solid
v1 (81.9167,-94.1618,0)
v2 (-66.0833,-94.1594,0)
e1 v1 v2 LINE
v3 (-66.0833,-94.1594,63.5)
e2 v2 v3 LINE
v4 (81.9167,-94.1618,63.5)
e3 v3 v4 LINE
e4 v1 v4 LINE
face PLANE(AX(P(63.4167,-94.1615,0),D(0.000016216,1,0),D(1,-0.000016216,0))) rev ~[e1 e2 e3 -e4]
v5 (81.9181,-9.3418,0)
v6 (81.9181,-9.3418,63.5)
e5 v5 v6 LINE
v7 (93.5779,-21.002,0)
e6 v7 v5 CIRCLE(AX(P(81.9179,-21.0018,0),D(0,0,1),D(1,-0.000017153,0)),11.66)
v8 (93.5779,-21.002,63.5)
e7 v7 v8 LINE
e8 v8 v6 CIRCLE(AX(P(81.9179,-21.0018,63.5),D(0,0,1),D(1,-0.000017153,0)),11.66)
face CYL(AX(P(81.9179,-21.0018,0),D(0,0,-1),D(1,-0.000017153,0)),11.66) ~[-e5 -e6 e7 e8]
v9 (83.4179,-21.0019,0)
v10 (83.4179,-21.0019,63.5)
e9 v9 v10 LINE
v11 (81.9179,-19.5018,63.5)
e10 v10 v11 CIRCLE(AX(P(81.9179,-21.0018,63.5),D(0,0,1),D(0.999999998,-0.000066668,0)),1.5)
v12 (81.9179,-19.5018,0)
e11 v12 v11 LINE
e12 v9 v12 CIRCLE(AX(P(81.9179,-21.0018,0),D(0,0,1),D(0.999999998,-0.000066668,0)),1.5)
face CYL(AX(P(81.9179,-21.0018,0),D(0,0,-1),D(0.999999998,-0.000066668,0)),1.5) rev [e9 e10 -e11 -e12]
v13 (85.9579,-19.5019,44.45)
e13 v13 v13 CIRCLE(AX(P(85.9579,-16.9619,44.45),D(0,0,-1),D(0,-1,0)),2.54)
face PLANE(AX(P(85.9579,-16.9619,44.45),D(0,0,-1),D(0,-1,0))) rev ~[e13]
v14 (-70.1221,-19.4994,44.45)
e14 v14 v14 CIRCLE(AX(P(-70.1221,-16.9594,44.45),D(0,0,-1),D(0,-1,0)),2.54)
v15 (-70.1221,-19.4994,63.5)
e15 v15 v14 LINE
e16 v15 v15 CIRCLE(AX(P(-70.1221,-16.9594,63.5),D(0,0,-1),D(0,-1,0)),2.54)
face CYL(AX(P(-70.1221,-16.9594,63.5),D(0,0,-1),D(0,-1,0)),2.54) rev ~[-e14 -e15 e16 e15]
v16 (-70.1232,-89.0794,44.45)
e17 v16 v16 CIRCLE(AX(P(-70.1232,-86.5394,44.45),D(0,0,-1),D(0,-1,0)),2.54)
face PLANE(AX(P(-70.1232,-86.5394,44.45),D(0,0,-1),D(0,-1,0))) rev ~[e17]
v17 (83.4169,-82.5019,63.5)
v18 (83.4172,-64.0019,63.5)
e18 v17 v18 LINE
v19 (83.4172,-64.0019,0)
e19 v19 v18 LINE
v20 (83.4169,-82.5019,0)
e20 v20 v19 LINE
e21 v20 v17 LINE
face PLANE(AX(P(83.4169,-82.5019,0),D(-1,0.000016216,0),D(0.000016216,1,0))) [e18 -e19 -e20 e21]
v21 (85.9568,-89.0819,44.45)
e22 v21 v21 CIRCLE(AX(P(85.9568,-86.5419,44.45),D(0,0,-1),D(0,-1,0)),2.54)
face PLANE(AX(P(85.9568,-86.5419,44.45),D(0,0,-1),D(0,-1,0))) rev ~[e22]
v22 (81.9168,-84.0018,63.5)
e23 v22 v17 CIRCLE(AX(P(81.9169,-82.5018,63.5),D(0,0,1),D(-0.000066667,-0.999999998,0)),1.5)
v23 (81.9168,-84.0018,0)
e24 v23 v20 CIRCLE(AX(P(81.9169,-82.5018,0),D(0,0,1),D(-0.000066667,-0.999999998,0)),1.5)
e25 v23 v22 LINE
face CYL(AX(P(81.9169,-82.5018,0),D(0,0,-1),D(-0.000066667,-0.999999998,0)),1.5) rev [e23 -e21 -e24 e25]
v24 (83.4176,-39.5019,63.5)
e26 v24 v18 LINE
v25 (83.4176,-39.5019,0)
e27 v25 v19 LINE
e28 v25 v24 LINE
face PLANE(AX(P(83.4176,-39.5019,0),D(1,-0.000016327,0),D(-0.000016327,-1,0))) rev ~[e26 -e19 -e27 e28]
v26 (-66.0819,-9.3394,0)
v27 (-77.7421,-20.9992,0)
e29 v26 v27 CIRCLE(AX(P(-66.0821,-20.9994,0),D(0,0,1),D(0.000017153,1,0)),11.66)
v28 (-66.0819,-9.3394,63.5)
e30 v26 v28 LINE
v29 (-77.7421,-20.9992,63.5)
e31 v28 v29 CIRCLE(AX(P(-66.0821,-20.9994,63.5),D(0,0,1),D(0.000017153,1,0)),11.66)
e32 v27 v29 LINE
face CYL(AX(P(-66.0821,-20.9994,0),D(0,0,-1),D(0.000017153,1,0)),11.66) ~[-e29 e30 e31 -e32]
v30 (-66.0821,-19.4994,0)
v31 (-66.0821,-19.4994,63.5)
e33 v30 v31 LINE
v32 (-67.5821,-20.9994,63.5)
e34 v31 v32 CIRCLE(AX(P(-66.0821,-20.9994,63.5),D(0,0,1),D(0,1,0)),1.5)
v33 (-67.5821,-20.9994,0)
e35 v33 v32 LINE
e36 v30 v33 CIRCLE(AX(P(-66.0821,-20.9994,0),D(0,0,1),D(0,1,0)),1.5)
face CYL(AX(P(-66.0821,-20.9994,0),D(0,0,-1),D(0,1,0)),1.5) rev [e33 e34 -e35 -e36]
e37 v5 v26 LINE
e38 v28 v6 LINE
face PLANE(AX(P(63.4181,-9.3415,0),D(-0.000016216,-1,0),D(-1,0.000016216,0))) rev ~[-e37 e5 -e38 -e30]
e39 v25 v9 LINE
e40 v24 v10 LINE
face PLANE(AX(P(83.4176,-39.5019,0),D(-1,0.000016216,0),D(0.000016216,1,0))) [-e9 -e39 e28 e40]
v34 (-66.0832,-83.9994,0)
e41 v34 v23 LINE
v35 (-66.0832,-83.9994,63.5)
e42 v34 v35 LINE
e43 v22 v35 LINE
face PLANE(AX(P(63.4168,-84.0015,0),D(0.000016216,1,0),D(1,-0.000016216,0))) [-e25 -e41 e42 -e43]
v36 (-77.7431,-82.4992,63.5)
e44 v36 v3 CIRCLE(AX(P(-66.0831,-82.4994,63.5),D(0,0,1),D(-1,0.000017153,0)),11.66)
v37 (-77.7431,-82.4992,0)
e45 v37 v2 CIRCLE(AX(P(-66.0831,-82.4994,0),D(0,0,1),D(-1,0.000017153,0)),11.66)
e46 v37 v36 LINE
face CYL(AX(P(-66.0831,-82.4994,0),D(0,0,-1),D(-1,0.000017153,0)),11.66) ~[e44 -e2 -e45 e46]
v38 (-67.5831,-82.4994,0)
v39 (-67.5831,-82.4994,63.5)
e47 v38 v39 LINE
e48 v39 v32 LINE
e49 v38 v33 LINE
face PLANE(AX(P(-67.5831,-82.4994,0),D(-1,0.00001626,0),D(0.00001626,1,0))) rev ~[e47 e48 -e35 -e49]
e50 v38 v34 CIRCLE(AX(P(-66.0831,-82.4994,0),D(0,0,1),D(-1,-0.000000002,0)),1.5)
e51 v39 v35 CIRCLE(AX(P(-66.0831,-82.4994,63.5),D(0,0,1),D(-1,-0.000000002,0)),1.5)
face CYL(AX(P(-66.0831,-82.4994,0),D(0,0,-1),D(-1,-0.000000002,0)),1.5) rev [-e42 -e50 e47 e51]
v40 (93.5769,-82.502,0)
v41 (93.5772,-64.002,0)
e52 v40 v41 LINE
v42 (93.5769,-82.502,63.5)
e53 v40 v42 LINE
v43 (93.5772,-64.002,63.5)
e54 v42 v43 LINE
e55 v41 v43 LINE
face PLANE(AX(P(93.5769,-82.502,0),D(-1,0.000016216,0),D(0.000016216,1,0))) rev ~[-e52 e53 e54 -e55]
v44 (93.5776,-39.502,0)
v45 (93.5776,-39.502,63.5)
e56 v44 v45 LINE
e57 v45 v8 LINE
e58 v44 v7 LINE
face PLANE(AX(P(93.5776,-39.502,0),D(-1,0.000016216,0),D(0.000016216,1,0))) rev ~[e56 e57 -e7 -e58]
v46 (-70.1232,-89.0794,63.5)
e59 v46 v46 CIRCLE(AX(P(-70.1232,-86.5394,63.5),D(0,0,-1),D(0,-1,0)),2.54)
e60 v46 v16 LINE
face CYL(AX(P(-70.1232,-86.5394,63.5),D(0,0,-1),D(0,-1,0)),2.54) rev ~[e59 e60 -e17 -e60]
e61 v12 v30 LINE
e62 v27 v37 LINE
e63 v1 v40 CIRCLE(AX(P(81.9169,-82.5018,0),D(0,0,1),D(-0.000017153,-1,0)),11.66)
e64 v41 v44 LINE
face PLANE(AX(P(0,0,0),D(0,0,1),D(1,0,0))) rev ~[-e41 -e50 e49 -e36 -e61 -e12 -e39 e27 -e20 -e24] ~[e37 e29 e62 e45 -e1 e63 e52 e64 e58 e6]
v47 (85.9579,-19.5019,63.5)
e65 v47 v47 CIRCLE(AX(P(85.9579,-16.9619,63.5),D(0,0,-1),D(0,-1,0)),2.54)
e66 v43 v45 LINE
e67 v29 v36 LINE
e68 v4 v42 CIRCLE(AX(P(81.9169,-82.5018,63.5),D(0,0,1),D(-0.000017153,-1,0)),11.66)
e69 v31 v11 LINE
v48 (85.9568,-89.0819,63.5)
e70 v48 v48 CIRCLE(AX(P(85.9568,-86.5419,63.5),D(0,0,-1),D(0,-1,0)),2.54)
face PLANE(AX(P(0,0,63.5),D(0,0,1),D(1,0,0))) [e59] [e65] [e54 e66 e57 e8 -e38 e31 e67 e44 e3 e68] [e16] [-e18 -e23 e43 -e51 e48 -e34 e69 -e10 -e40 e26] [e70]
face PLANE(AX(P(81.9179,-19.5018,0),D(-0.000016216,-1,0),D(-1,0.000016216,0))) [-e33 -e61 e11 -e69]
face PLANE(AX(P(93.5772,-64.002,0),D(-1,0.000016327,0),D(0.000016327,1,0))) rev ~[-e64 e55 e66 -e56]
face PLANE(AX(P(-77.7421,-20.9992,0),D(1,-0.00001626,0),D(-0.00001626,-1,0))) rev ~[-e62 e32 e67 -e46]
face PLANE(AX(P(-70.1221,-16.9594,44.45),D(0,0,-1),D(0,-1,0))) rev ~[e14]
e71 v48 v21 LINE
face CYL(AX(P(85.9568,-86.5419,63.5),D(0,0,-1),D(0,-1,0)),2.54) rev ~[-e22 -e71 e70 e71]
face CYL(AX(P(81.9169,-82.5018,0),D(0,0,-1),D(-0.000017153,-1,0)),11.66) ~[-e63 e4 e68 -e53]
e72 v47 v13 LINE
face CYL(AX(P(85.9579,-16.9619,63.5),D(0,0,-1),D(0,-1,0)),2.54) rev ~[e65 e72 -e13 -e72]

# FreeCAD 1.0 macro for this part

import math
import FreeCAD as App
import Part
import Sketcher
Q = App.Units.Quantity

doc = App.newDocument("Part")
body = doc.addObject("PartDesign::Body", "Body")

# Sketch on XY plane
sketch1 = body.newObject("Sketcher::SketchObject", "Sketch")
sketch1.AttachmentSupport = (doc.getObject("XY_Plane"), [""])
sketch1.MapMode = "FlatFace"
sketch1.addGeometry([
    Part.ArcOfCircle(Part.Circle(App.Vector(-66.0821, -20.9994, 0), App.Vector(0, 0, 1), 11.66), math.radians(89.999017), math.radians(179.999017)),  # 0
    Part.LineSegment(App.Vector(-77.7421, -20.9992, 0), App.Vector(-77.7431, -82.4992, 0)),  # 1
    Part.ArcOfCircle(Part.Circle(App.Vector(-66.0831, -82.4994, 0), App.Vector(0, 0, 1), 11.66), math.radians(179.999017), math.radians(269.999017)),  # 2
    Part.LineSegment(App.Vector(-66.0833, -94.1594, 0), App.Vector(81.9167, -94.1618, 0)),  # 3
    Part.ArcOfCircle(Part.Circle(App.Vector(81.9169, -82.5018, 0), App.Vector(0, 0, 1), 11.66), math.radians(-90.000983), math.radians(-0.000983)),  # 4
    Part.LineSegment(App.Vector(93.5769, -82.502, 0), App.Vector(93.5772, -64.002, 0)),  # 5
    Part.LineSegment(App.Vector(93.5772, -64.002, 0), App.Vector(93.5776, -39.502, 0)),  # 6
    Part.LineSegment(App.Vector(93.5776, -39.502, 0), App.Vector(93.5779, -21.002, 0)),  # 7
    Part.ArcOfCircle(Part.Circle(App.Vector(81.9179, -21.0018, 0), App.Vector(0, 0, 1), 11.66), math.radians(-0.000983), math.radians(89.999017)),  # 8
    Part.LineSegment(App.Vector(81.9181, -9.3418, 0), App.Vector(-66.0819, -9.3394, 0)),  # 9
    Part.LineSegment(App.Vector(81.9168, -84.0018, 0), App.Vector(-66.0832, -83.9994, 0)),  # 10
    Part.ArcOfCircle(Part.Circle(App.Vector(-66.0831, -82.4994, 0), App.Vector(0, 0, 1), 1.5), math.radians(180), math.radians(269.99618)),  # 11
    Part.LineSegment(App.Vector(-67.5831, -82.4994, 0), App.Vector(-67.5821, -20.9994, 0)),  # 12
    Part.ArcOfCircle(Part.Circle(App.Vector(-66.0821, -20.9994, 0), App.Vector(0, 0, 1), 1.5), math.radians(90), math.radians(180)),  # 13
    Part.LineSegment(App.Vector(-66.0821, -19.4994, 0), App.Vector(81.9179, -19.5018, 0)),  # 14
    Part.ArcOfCircle(Part.Circle(App.Vector(81.9179, -21.0018, 0), App.Vector(0, 0, 1), 1.5), math.radians(-0.00382), math.radians(90)),  # 15
    Part.LineSegment(App.Vector(83.4179, -21.0019, 0), App.Vector(83.4176, -39.5019, 0)),  # 16
    Part.LineSegment(App.Vector(83.4176, -39.5019, 0), App.Vector(83.4172, -64.0019, 0)),  # 17
    Part.LineSegment(App.Vector(83.4172, -64.0019, 0), App.Vector(83.4169, -82.5019, 0)),  # 18
    Part.ArcOfCircle(Part.Circle(App.Vector(81.9169, -82.5018, 0), App.Vector(0, 0, 1), 1.5), math.radians(-90.00382), math.radians(-0.00382)),  # 19
], False)
sketch1.addConstraint([
    Sketcher.Constraint("Coincident", 0, 2, 1, 1),
    Sketcher.Constraint("Coincident", 1, 2, 2, 1),
    Sketcher.Constraint("Coincident", 2, 2, 3, 1),
    Sketcher.Constraint("Coincident", 3, 2, 4, 1),
    Sketcher.Constraint("Coincident", 4, 2, 5, 1),
    Sketcher.Constraint("Coincident", 5, 2, 6, 1),
    Sketcher.Constraint("Coincident", 6, 2, 7, 1),
    Sketcher.Constraint("Coincident", 7, 2, 8, 1),
    Sketcher.Constraint("Coincident", 8, 2, 9, 1),
    Sketcher.Constraint("Coincident", 9, 2, 0, 1),
    Sketcher.Constraint("Coincident", 10, 2, 11, 2),
    Sketcher.Constraint("Coincident", 11, 1, 12, 1),
    Sketcher.Constraint("Coincident", 12, 2, 13, 2),
    Sketcher.Constraint("Coincident", 13, 1, 14, 1),
    Sketcher.Constraint("Coincident", 14, 2, 15, 2),
    Sketcher.Constraint("Coincident", 15, 1, 16, 1),
    Sketcher.Constraint("Coincident", 16, 2, 17, 1),
    Sketcher.Constraint("Coincident", 17, 2, 18, 1),
    Sketcher.Constraint("Coincident", 18, 2, 19, 2),
    Sketcher.Constraint("Coincident", 19, 1, 10, 1),
    Sketcher.Constraint("Coincident", 11, 3, 2, 3),
    Sketcher.Constraint("Coincident", 13, 3, 0, 3),
    Sketcher.Constraint("Coincident", 15, 3, 8, 3),
    Sketcher.Constraint("Coincident", 19, 3, 4, 3),
    Sketcher.Constraint("Radius", 11, Q("1.5 mm")),
    Sketcher.Constraint("Radius", 13, Q("1.5 mm")),
    Sketcher.Constraint("Radius", 15, Q("1.5 mm")),
    Sketcher.Constraint("Radius", 19, Q("1.5 mm")),
    Sketcher.Constraint("Radius", 0, Q("11.66 mm")),
    Sketcher.Constraint("Radius", 2, Q("11.66 mm")),
    Sketcher.Constraint("Radius", 4, Q("11.66 mm")),
    Sketcher.Constraint("Radius", 8, Q("11.66 mm")),
    Sketcher.Constraint("DistanceX", 16, 2, 6, 2, Q("10.16 mm")),
    Sketcher.Constraint("DistanceX", 17, 2, 5, 2, Q("10.16 mm")),
    Sketcher.Constraint("Distance", 3, Q("148 mm")),
    Sketcher.Constraint("Distance", 9, Q("148 mm")),
    Sketcher.Constraint("Distance", 10, Q("148 mm")),
    Sketcher.Constraint("Distance", 14, Q("148 mm")),
    Sketcher.Constraint("DistanceX", 2, 3, 4, 3, Q("148 mm")),
    Sketcher.Constraint("DistanceX", 0, 3, 8, 3, Q("148 mm")),
    Sketcher.Constraint("DistanceY", 4, 2, 6, 2, Q("43 mm")),
    Sketcher.Constraint("DistanceY", 5, 2, 7, 2, Q("43 mm")),
    Sketcher.Constraint("DistanceX", 10, 2, 2, 3, Q("0 mm")),
    Sketcher.Constraint("DistanceY", 10, 2, 0, 3, Q("63 mm")),
    Sketcher.Constraint("DistanceY", 6, 2, 16, 2, Q("0 mm")),
    Sketcher.Constraint("DistanceY", 16, 2, 14, 2, Q("20 mm")),
    Sketcher.Constraint("DistanceY", 18, 2, 4, 3, Q("0 mm")),
    Sketcher.Constraint("Distance", 1, Q("61.5 mm")),
    Sketcher.Constraint("Distance", 5, Q("18.5 mm")),
    Sketcher.Constraint("Distance", 12, Q("61.5 mm")),
    Sketcher.Constraint("Distance", 16, Q("18.5 mm")),
    Sketcher.Constraint("Distance", 17, Q("24.5 mm")),
    Sketcher.Constraint("Distance", 18, Q("18.5 mm")),
    Sketcher.Constraint("DistanceY", 10, 2, 11, 1, Q("1.5 mm")),
    Sketcher.Constraint("DistanceX", 12, 2, 13, 1, Q("1.5 mm")),
    Sketcher.Constraint("DistanceX", 17, 2, 4, 2, Q("10.1597 mm")),
    Sketcher.Constraint("DistanceX", 0, 3, -1, 1, Q("66.082 mm")),
    Sketcher.Constraint("DistanceX", 2, 3, -1, 1, Q("66.083 mm")),
    Sketcher.Constraint("DistanceY", 4, 2, -1, 1, Q("82.502 mm")),
    Sketcher.Constraint("DistanceX", -1, 1, 8, 2, Q("81.918 mm")),
    Sketcher.Constraint("DistanceY", 0, 3, -1, 1, Q("20.9994 mm")),
    Sketcher.Constraint("DistanceY", 0, 2, -1, 1, Q("20.9992 mm")),
    Sketcher.Constraint("DistanceX", 2, 2, -1, 1, Q("66.0833 mm")),
    Sketcher.Constraint("DistanceX", -1, 1, 6, 2, Q("93.5776 mm")),
])
pad1 = body.newObject("PartDesign::Pad", "Pad")
pad1.Profile = sketch1
pad1.Length = 63.5

# Sketch on XY plane
sketch2 = body.newObject("Sketcher::SketchObject", "Sketch001")
sketch2.AttachmentSupport = (doc.getObject("XY_Plane"), [""])
sketch2.MapMode = "FlatFace"
sketch2.AttachmentOffset = App.Placement(App.Vector(0, 0, 63.5), App.Rotation())
sketch2.addGeometry([
    Part.Circle(App.Vector(-70.1, -17, 0), App.Vector(0, 0, 1), 2.5),
    Part.Circle(App.Vector(-70.1, -86.5, 0), App.Vector(0, 0, 1), 2.5),
    Part.Circle(App.Vector(86, -17, 0), App.Vector(0, 0, 1), 2.5),
    Part.Circle(App.Vector(86, -86.5, 0), App.Vector(0, 0, 1), 2.5),
], False)
sketch2.addConstraint([
    Sketcher.Constraint("Equal", 0, 1),
    Sketcher.Constraint("Equal", 1, 2),
    Sketcher.Constraint("Equal", 2, 3),
    Sketcher.Constraint("Diameter", 0, Q("5.08 mm")),
    Sketcher.Constraint("DistanceY", 1, 3, 0, 3, Q("69.58 mm")),
    Sketcher.Constraint("DistanceX", 0, 3, 2, 3, Q("156.08 mm")),
    Sketcher.Constraint("DistanceY", 3, 3, 2, 3, Q("69.58 mm")),
    Sketcher.Constraint("DistanceX", 1, 3, 3, 3, Q("156.08 mm")),
    Sketcher.Constraint("DistanceX", 0, 3, -1, 1, Q("70.122 mm")),
    Sketcher.Constraint("DistanceY", 2, 3, -1, 1, Q("16.962 mm")),
    Sketcher.Constraint("DistanceX", 1, 3, 0, 3, Q("0.001 mm")),
    Sketcher.Constraint("DistanceY", 0, 3, -1, 1, Q("16.9594 mm")),
])
doc.recompute()
hole = body.newObject("PartDesign::Hole", "Hole")
hole.Profile = sketch2
hole.ThreadType = "None"
hole.Diameter = 5.08
hole.DepthType = "Dimension"
hole.Depth = 19.05
hole.DrillPoint = "Flat"

doc.recompute()
